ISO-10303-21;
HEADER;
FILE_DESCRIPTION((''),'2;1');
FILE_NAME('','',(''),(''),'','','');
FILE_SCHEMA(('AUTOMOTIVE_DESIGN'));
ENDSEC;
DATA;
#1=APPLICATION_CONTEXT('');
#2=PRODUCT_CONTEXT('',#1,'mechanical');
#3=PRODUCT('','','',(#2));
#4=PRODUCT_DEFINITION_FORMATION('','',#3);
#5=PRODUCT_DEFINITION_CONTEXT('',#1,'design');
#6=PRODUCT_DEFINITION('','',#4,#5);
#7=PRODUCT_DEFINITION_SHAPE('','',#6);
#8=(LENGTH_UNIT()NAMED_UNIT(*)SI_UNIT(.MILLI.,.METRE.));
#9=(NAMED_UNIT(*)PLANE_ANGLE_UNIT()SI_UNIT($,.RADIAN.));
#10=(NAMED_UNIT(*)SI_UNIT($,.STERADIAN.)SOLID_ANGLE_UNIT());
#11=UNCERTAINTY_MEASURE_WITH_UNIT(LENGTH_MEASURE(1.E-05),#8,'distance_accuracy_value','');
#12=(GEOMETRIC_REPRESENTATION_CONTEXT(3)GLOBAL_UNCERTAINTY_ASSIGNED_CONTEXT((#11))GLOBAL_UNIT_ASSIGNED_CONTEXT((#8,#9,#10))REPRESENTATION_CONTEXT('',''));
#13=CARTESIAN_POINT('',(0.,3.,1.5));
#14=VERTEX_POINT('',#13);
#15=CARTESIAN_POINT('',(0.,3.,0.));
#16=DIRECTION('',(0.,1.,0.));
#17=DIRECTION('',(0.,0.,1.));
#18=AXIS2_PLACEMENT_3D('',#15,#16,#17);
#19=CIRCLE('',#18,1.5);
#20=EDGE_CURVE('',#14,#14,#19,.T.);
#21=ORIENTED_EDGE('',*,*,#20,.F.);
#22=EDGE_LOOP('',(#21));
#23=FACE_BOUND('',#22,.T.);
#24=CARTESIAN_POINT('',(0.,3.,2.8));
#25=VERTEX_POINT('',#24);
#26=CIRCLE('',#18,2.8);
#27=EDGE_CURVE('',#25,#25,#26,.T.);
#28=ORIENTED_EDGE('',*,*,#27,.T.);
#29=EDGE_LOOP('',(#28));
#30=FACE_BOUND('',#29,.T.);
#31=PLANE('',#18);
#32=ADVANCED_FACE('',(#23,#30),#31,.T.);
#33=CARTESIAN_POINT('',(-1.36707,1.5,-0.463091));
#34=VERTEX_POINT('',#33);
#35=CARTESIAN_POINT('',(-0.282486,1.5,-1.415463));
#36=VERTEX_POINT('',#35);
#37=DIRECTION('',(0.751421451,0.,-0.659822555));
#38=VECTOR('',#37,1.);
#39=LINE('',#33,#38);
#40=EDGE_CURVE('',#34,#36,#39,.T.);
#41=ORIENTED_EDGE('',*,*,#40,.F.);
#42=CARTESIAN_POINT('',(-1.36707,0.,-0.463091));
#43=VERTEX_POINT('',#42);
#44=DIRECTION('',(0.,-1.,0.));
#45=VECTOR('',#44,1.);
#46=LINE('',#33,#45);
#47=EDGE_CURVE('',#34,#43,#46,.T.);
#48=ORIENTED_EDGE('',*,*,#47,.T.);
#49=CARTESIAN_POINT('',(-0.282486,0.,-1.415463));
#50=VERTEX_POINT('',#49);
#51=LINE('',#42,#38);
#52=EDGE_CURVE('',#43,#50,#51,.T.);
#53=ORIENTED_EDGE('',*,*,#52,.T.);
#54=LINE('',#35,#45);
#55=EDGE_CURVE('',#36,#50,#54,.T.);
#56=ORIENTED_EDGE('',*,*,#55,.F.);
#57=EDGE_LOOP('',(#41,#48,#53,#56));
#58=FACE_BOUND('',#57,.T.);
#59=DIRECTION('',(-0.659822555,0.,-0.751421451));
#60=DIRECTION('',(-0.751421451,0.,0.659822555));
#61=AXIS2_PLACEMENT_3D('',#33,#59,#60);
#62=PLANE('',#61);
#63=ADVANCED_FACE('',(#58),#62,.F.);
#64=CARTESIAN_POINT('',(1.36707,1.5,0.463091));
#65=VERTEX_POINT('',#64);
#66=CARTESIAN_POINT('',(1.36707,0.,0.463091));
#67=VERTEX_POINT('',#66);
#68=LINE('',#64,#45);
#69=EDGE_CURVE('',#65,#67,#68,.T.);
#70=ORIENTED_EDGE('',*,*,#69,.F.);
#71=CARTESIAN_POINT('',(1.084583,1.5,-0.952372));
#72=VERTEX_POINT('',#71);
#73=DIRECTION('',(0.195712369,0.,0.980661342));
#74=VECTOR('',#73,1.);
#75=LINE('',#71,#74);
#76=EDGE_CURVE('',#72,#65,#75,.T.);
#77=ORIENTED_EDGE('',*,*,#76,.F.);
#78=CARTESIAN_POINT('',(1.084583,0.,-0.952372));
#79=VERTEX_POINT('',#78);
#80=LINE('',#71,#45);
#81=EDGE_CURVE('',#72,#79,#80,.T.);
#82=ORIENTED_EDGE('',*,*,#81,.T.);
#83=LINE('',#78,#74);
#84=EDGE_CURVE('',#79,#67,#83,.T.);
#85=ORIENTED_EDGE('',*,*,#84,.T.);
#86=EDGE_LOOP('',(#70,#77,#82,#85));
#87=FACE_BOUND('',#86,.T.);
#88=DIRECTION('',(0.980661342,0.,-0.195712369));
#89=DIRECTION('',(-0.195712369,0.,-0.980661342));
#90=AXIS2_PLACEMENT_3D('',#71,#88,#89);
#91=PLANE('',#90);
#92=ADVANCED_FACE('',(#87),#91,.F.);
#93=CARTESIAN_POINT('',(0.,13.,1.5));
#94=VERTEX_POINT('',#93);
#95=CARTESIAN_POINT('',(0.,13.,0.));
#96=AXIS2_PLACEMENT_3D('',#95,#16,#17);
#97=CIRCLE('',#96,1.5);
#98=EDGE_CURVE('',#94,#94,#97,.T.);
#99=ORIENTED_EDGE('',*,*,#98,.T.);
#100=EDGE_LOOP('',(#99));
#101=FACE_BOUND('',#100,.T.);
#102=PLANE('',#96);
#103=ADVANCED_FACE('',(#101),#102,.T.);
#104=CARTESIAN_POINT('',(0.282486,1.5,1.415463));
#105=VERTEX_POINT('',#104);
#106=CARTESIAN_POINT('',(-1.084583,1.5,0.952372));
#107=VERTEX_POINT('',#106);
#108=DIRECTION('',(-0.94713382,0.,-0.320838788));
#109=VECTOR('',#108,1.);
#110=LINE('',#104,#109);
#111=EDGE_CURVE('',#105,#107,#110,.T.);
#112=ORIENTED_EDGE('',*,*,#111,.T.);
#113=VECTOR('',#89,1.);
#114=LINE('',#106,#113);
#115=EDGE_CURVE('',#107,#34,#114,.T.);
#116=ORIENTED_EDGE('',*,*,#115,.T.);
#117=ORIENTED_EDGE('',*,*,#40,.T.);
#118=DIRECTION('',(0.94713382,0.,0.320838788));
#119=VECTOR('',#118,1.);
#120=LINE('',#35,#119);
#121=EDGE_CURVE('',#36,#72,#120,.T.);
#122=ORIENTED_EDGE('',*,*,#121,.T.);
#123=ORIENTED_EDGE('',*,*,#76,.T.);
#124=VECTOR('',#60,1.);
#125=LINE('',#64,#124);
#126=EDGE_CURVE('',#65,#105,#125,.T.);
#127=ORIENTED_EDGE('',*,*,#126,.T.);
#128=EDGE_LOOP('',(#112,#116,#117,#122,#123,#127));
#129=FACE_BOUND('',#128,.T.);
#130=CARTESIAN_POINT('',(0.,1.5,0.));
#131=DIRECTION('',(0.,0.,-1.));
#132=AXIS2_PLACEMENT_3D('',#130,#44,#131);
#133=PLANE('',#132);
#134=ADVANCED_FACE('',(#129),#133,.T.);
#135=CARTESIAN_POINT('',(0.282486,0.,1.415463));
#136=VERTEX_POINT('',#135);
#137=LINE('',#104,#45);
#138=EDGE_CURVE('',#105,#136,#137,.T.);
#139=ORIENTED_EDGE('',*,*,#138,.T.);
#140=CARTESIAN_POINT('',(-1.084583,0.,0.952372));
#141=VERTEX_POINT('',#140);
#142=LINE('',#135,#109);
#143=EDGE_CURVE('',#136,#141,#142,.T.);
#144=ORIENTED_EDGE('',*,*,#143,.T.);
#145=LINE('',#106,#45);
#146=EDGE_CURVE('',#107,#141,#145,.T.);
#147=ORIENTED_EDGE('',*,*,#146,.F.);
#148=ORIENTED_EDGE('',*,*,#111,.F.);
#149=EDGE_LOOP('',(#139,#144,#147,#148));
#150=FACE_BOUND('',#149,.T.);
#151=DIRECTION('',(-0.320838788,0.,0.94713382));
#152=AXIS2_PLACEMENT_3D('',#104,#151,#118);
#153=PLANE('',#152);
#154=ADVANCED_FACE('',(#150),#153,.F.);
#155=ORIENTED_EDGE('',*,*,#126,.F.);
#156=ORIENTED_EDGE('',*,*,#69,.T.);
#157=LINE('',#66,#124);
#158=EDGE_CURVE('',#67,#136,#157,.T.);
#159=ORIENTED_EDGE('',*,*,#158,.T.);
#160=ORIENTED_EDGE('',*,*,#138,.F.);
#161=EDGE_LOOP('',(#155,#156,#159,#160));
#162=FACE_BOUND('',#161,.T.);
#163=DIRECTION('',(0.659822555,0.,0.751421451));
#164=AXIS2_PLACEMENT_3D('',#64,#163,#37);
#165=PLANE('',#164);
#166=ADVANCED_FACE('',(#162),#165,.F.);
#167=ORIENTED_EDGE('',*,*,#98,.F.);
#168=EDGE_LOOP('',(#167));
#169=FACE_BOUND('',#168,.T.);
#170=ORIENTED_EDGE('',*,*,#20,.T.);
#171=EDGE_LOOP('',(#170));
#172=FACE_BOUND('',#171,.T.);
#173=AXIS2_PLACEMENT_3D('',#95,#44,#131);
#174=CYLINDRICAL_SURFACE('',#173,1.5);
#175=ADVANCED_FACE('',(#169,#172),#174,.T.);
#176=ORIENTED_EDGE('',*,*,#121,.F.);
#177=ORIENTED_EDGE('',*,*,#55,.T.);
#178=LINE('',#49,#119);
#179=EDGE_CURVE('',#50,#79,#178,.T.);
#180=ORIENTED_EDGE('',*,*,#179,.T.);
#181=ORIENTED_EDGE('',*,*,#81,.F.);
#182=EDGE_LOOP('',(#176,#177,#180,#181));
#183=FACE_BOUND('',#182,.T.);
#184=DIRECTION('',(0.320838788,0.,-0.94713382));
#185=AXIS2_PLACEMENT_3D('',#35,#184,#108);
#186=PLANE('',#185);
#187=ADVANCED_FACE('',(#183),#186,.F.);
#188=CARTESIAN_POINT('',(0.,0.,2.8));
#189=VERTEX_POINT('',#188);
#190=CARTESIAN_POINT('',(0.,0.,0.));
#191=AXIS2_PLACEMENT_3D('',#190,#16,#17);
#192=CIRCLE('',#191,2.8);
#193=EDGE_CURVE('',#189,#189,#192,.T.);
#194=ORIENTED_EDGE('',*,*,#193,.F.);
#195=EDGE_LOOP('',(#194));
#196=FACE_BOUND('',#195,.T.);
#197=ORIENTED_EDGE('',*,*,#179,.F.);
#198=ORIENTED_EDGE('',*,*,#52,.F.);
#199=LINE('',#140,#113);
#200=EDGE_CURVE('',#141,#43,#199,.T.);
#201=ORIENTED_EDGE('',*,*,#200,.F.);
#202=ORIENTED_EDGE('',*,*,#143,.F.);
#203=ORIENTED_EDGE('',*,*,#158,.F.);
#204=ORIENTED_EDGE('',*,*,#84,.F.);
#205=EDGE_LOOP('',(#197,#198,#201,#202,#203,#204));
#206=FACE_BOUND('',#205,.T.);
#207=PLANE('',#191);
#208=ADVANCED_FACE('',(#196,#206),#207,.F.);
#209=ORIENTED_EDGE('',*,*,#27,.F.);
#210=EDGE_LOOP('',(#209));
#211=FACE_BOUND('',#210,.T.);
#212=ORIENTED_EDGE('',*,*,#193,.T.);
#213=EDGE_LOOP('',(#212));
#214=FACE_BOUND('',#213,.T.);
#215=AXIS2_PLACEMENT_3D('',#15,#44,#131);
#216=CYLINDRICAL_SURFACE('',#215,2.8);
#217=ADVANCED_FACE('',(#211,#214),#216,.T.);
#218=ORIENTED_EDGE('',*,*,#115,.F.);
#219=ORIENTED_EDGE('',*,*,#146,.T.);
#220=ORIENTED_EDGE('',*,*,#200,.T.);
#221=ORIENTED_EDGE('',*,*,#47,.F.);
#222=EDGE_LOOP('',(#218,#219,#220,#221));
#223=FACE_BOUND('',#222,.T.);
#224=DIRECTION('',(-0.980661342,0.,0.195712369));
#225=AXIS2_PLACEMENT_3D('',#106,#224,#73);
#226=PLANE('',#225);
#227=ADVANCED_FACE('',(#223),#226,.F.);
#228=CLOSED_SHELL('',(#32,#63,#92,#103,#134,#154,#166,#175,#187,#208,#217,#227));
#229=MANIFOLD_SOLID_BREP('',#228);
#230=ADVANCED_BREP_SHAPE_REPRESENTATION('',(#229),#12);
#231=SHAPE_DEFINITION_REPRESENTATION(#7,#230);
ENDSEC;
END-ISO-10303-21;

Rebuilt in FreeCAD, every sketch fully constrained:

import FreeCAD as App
import Part
import Sketcher

V = App.Vector
Q = App.Units.Quantity


def add_polygon(sketch, points):
    """Adds a closed chain of lines whose ends are joined by coincident constraints."""
    first, n = sketch.GeometryCount, len(points)
    for a, b in zip(points, points[1:] + points[:1]):
        sketch.addGeometry(Part.LineSegment(App.Vector(*a, 0), App.Vector(*b, 0)), False)
    for i in range(n):
        sketch.addConstraint(Sketcher.Constraint("Coincident", first + i, 2, first + (i + 1) % n, 1))

doc = App.newDocument("Part")
body = doc.addObject("PartDesign::Body", "Body")

sketch1 = body.newObject("Sketcher::SketchObject", "Sketch")
sketch1.AttachmentSupport = (doc.getObject("XZ_Plane"), [""])
sketch1.MapMode = "FlatFace"
sketch1.addGeometry(Part.Circle(V(0, 0, 0), V(0, 0, 1), 2.8), False)
sketch1.addConstraint([
    Sketcher.Constraint("Coincident", 0, 3, -1, 1),
    Sketcher.Constraint("Diameter", 0, Q("5.6 mm")),
])
pad1 = body.newObject("PartDesign::Pad", "Pad")
pad1.Profile = sketch1
pad1.Length = 3
pad1.Reversed = True

sketch2 = body.newObject("Sketcher::SketchObject", "Sketch001")
sketch2.AttachmentSupport = (doc.getObject("XZ_Plane"), [""])
sketch2.MapMode = "FlatFace"
sketch2.AttachmentOffset = App.Placement(V(0, 0, -3), App.Rotation())
sketch2.addGeometry(Part.Circle(V(0, 0, 0), V(0, 0, 1), 1.5), False)
sketch2.addConstraint([
    Sketcher.Constraint("Coincident", 0, 3, -1, 1),
    Sketcher.Constraint("Diameter", 0, Q("3 mm")),
])
pad2 = body.newObject("PartDesign::Pad", "Pad001")
pad2.Profile = sketch2
pad2.Length = 10
pad2.Reversed = True

sketch3 = body.newObject("Sketcher::SketchObject", "Sketch002")
sketch3.AttachmentSupport = (doc.getObject("XZ_Plane"), [""])
sketch3.MapMode = "FlatFace"
add_polygon(sketch3, [(1.1, -1), (1.4, 0.5), (0.3, 1.4), (-1.1, 1), (-1.4, -0.5), (-0.3, -1.4)])
sketch3.addConstraint([
    Sketcher.Constraint("Symmetric", 0, 2, 3, 2, -1, 1),
    Sketcher.Constraint("Symmetric", 1, 2, 4, 2, -1, 1),
    Sketcher.Constraint("Symmetric", 2, 2, 5, 2, -1, 1),
    Sketcher.Constraint("Equal", 0, 1),
    Sketcher.Constraint("Equal", 1, 2),
    Sketcher.Constraint("DistanceX", -1, 1, 0, 2, Q("1.36707 mm")),
    Sketcher.Constraint("DistanceY", -1, 1, 0, 2, Q("0.463091 mm")),
    Sketcher.Constraint("DistanceY", -1, 1, 2, 2, Q("0.952372 mm")),
    Sketcher.Constraint("DistanceY", 0, 2, 1, 2, Q("0.952372 mm")),
])
pocket1 = body.newObject("PartDesign::Pocket", "Pocket")
pocket1.Profile = sketch3
pocket1.Length = 1.5

doc.recompute()
